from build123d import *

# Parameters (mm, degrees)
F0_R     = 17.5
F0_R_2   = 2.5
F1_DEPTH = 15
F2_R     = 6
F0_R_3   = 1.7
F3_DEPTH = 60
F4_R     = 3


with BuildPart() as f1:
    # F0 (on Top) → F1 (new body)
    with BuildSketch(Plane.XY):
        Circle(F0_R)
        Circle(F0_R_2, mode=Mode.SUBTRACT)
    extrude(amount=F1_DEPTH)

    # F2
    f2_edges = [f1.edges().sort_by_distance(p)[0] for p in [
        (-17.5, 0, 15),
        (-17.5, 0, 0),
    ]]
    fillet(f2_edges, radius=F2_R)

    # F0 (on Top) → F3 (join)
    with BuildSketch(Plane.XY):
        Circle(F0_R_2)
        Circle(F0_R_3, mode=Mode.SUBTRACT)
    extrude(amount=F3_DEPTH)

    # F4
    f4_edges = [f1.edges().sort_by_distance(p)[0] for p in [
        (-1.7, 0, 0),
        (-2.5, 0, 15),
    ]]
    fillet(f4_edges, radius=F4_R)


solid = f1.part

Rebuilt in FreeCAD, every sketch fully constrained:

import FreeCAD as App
import Part
import Sketcher

V = App.Vector


def edges_at(feature, points):
    """Names of the edges that pass closest to the given points."""
    edges = feature.Shape.Edges
    near = lambda p: min(range(len(edges)), key=lambda i: edges[i].distToShape(Part.Vertex(*p))[0])
    return sorted({f"Edge{near(p) + 1}" for p in points})

doc = App.newDocument("Part")
body = doc.addObject("PartDesign::Body", "Body")

sketch1 = body.newObject("Sketcher::SketchObject", "Sketch")
sketch1.AttachmentSupport = (doc.getObject("XY_Plane"), [""])
sketch1.MapMode = "FlatFace"
sketch1.addGeometry([
    Part.Circle(V(0, 0, 0), V(0, 0, 1), 17.5),
    Part.Circle(V(0, 0, 0), V(0, 0, 1), 2.5),
], False)
sketch1.addConstraint([
    Sketcher.Constraint("Coincident", 0, 3, -1, 1),
    Sketcher.Constraint("Coincident", 1, 3, -1, 1),
    Sketcher.Constraint("Diameter", 0, 35.0),
    Sketcher.Constraint("Diameter", 1, 5.0),
])
pad1 = body.newObject("PartDesign::Pad", "Pad")
pad1.Profile = sketch1
pad1.Length = 15
doc.recompute()

fillet = body.newObject("PartDesign::Fillet", "Fillet")
fillet.Base = (pad1, edges_at(pad1, [(-17.5, 0, 15), (-17.5, 0, 0)]))
fillet.Radius = 6

sketch2 = body.newObject("Sketcher::SketchObject", "Sketch001")
sketch2.AttachmentSupport = (doc.getObject("XY_Plane"), [""])
sketch2.MapMode = "FlatFace"
sketch2.addGeometry([
    Part.Circle(V(0, 0, 0), V(0, 0, 1), 2.5),
    Part.Circle(V(0, 0, 0), V(0, 0, 1), 1.7),
], False)
sketch2.addConstraint([
    Sketcher.Constraint("Coincident", 0, 3, -1, 1),
    Sketcher.Constraint("Coincident", 1, 3, -1, 1),
    Sketcher.Constraint("Diameter", 0, 5.0),
    Sketcher.Constraint("Diameter", 1, 3.4),
])
pad2 = body.newObject("PartDesign::Pad", "Pad001")
pad2.Profile = sketch2
pad2.Length = 60
doc.recompute()

fillet2 = body.newObject("PartDesign::Fillet", "Fillet001")
fillet2.Base = (pad2, edges_at(pad2, [(-1.7, 0, 0), (-2.5, 0, 15)]))
fillet2.Radius = 3

doc.recompute()
